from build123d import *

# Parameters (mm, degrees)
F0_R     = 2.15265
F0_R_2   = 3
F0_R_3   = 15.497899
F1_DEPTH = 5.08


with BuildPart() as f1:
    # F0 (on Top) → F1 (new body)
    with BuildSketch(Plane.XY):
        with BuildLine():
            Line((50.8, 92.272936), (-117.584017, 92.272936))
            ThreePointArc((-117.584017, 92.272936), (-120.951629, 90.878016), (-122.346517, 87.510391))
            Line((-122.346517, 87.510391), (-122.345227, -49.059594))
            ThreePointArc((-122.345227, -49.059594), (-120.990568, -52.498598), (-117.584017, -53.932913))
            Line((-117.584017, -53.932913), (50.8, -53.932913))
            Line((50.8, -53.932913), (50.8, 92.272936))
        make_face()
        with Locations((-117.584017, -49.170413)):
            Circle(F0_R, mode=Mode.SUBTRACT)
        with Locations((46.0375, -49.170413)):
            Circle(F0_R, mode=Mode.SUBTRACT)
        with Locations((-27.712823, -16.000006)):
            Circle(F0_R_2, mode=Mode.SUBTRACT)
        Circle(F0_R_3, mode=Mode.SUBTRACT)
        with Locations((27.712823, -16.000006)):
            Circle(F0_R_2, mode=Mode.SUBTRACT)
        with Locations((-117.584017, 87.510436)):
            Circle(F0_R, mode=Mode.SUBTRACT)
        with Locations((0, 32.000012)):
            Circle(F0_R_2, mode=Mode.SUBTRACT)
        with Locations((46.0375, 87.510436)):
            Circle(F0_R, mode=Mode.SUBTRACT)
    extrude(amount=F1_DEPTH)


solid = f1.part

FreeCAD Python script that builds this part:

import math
import FreeCAD as App
import Part
import Sketcher
from FreeCAD import Vector
Q = App.Units.Quantity

doc = App.newDocument("Part")
body = doc.addObject("PartDesign::Body", "Body")

# Sketch on XY plane
sketch1 = body.newObject("Sketcher::SketchObject", "Sketch")
sketch1.AttachmentSupport = (doc.getObject("XY_Plane"), [""])
sketch1.MapMode = "FlatFace"
sketch1.addGeometry(Part.LineSegment(Vector(50.8, 92.272936, 0), Vector(-117.584017, 92.272936, 0)), False)
sketch1.addGeometry(Part.ArcOfCircle(Part.Circle(Vector(-117.584017, 87.510436, 0), Vector(0, 0, 1), 4.7625), math.radians(90.000002), math.radians(180.00054)), False)
sketch1.addGeometry(Part.LineSegment(Vector(-122.346517, 87.510391, 0), Vector(-122.345227, -49.059594, 0)), False)
sketch1.addGeometry(Part.ArcOfCircle(Part.Circle(Vector(-117.584017, -49.170414, 0), Vector(0, 0, 1), 4.762499), math.radians(178.666653), math.radians(270.000001)), False)
sketch1.addGeometry(Part.LineSegment(Vector(-117.584017, -53.932913, 0), Vector(50.8, -53.932913, 0)), False)
sketch1.addGeometry(Part.LineSegment(Vector(50.8, -53.932913, 0), Vector(50.8, 92.272936, 0)), False)
sketch1.addGeometry(Part.Circle(Vector(-117.584017, -49.170413, 0), Vector(0, 0, 1), 2.15265), False)
sketch1.addGeometry(Part.Circle(Vector(46.0375, -49.170413, 0), Vector(0, 0, 1), 2.15265), False)
sketch1.addGeometry(Part.Circle(Vector(-27.712823, -16.000006, 0), Vector(0, 0, 1), 3), False)
sketch1.addGeometry(Part.Circle(Vector(0, 0, 0), Vector(0, 0, 1), 15.497899), False)
sketch1.addGeometry(Part.Circle(Vector(27.712823, -16.000006, 0), Vector(0, 0, 1), 3), False)
sketch1.addGeometry(Part.Circle(Vector(-117.584017, 87.510436, 0), Vector(0, 0, 1), 2.15265), False)
sketch1.addGeometry(Part.Circle(Vector(0, 32.000012, 0), Vector(0, 0, 1), 3), False)
sketch1.addGeometry(Part.Circle(Vector(46.0375, 87.510436, 0), Vector(0, 0, 1), 2.15265), False)
sketch1.addConstraint(Sketcher.Constraint("Tangent", 0, 2, 1, 1))
sketch1.addConstraint(Sketcher.Constraint("Tangent", 1, 2, 2, 1))
sketch1.addConstraint(Sketcher.Constraint("Coincident", 2, 2, 3, 1))
sketch1.addConstraint(Sketcher.Constraint("Tangent", 3, 2, 4, 1))
sketch1.addConstraint(Sketcher.Constraint("Coincident", 4, 2, 5, 1))
sketch1.addConstraint(Sketcher.Constraint("Coincident", 5, 2, 0, 1))
sketch1.addConstraint(Sketcher.Constraint("Horizontal", 0))
sketch1.addConstraint(Sketcher.Constraint("Horizontal", 4))
sketch1.addConstraint(Sketcher.Constraint("Vertical", 5))
sketch1.addConstraint(Sketcher.Constraint("Coincident", 9, 3, -1, 1))
sketch1.addConstraint(Sketcher.Constraint("Coincident", 6, 3, 3, 3))
sketch1.addConstraint(Sketcher.Constraint("Coincident", 11, 3, 1, 3))
sketch1.addConstraint(Sketcher.Constraint("Equal", 1, 3))
sketch1.addConstraint(Sketcher.Constraint("Equal", 6, 7))
sketch1.addConstraint(Sketcher.Constraint("Equal", 8, 10))
sketch1.addConstraint(Sketcher.Constraint("Equal", 7, 11))
sketch1.addConstraint(Sketcher.Constraint("Equal", 10, 12))
sketch1.addConstraint(Sketcher.Constraint("Equal", 11, 13))
sketch1.addConstraint(Sketcher.Constraint("Symmetric", 8, 3, 10, 3, -2))
sketch1.addConstraint(Sketcher.Constraint("PointOnObject", 12, 3, -2))
sketch1.addConstraint(Sketcher.Constraint("Horizontal", 6, 3, 7, 3))
sketch1.addConstraint(Sketcher.Constraint("Horizontal", 11, 3, 13, 3))
sketch1.addConstraint(Sketcher.Constraint("Vertical", 1, 3, 3, 3))
sketch1.addConstraint(Sketcher.Constraint("Vertical", 7, 3, 13, 3))
sketch1.addConstraint(Sketcher.Constraint("DistanceX", -1, 1, 4, 2, Q("2 in")))
sketch1.addConstraint(Sketcher.Constraint("Radius", 1, Q("0.1875 in")))
sketch1.addConstraint(Sketcher.Constraint("Diameter", 6, Q("0.1695 in")))
sketch1.addConstraint(Sketcher.Constraint("Diameter", 8, 6.0))
sketch1.addConstraint(Sketcher.Constraint("Diameter", 9, 30.995798))
sketch1.addConstraint(Sketcher.Constraint("DistanceX", -1, 1, 7, 3, Q("1.8125 in")))
sketch1.addConstraint(Sketcher.Constraint("DistanceY", 5, 1, 5, 2, 146.205849))
sketch1.addConstraint(Sketcher.Constraint("DistanceX", 0, 2, 0, 1, 168.384017))
sketch1.addConstraint(Sketcher.Constraint("DistanceY", -1, 1, 12, 3, 32.000012))
sketch1.addConstraint(Sketcher.Constraint("DistanceY", -1, 1, 1, 2, 87.510391))
sketch1.addConstraint(Sketcher.Constraint("DistanceY", 8, 3, 1, 3, 103.510442))
sketch1.addConstraint(Sketcher.Constraint("DistanceX", 6, 3, 10, 3, 145.29684))
sketch1.addConstraint(Sketcher.Constraint("DistanceX", 2, 2, 3, 3, 4.76121))
pad1 = body.newObject("PartDesign::Pad", "Pad")
pad1.Profile = sketch1
pad1.Length = Q("0.2 in")

doc.recompute()
